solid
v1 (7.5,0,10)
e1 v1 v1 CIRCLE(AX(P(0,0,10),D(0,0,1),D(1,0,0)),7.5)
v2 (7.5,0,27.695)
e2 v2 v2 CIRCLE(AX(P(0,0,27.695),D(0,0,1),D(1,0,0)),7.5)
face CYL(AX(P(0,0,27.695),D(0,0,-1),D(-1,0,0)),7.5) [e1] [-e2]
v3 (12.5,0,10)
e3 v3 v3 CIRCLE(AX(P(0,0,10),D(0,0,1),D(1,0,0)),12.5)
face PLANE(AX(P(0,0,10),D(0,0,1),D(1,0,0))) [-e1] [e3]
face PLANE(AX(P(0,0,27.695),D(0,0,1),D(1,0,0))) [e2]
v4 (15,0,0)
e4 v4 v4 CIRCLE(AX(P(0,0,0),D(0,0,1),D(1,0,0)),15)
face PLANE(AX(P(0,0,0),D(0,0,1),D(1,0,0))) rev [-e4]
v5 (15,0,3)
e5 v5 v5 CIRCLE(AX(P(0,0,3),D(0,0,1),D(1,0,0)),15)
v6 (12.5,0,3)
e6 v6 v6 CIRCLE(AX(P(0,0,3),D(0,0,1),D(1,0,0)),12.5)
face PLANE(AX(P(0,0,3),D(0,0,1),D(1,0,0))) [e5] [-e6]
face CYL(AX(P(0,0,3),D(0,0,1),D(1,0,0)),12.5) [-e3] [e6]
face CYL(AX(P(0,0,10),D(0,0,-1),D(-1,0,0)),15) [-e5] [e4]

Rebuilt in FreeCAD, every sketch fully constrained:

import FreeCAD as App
import Part
import Sketcher

V = App.Vector

doc = App.newDocument("Part")
body = doc.addObject("PartDesign::Body", "Body")

# Sketch on XY plane
sketch1 = body.newObject("Sketcher::SketchObject", "Sketch")
sketch1.AttachmentSupport = (doc.getObject("XY_Plane"), [""])
sketch1.MapMode = "FlatFace"
sketch1.addGeometry(Part.Circle(V(0, 0, 0), V(0, 0, 1), 15), False)
sketch1.addConstraint([
    Sketcher.Constraint("Coincident", 0, 3, -1, 1),
    Sketcher.Constraint("Diameter", 0, 30.0),
])
pad1 = body.newObject("PartDesign::Pad", "Pad")
pad1.Profile = sketch1
pad1.Length = 10

# Sketch on XY plane
sketch2 = body.newObject("Sketcher::SketchObject", "Sketch001")
sketch2.AttachmentSupport = (doc.getObject("XY_Plane"), [""])
sketch2.MapMode = "FlatFace"
sketch2.AttachmentOffset = App.Placement(V(0, 0, 3), App.Rotation())
sketch2.addGeometry([
    Part.Circle(V(0, 0, 0), V(0, 0, 1), 15),
    Part.Circle(V(0, 0, 0), V(0, 0, 1), 12),
], False)
sketch2.addConstraint([
    Sketcher.Constraint("Coincident", 0, 3, -1, 1),
    Sketcher.Constraint("Coincident", 1, 3, -1, 1),
    Sketcher.Constraint("Diameter", 0, 30.0),
    Sketcher.Constraint("Diameter", 1, 25.0),
])
pocket1 = body.newObject("PartDesign::Pocket", "Pocket")
pocket1.Profile = sketch2
pocket1.Length = 7
pocket1.Reversed = True

# Sketch on XY plane
sketch3 = body.newObject("Sketcher::SketchObject", "Sketch002")
sketch3.AttachmentSupport = (doc.getObject("XY_Plane"), [""])
sketch3.MapMode = "FlatFace"
sketch3.AttachmentOffset = App.Placement(V(0, 0, 10), App.Rotation())
sketch3.addGeometry(Part.Circle(V(0, 0, 0), V(0, 0, 1), 8), False)
sketch3.addConstraint([
    Sketcher.Constraint("Coincident", 0, 3, -1, 1),
    Sketcher.Constraint("Diameter", 0, 15.0),
])
pad2 = body.newObject("PartDesign::Pad", "Pad001")
pad2.Profile = sketch3
pad2.Length = 17.695

doc.recompute()
